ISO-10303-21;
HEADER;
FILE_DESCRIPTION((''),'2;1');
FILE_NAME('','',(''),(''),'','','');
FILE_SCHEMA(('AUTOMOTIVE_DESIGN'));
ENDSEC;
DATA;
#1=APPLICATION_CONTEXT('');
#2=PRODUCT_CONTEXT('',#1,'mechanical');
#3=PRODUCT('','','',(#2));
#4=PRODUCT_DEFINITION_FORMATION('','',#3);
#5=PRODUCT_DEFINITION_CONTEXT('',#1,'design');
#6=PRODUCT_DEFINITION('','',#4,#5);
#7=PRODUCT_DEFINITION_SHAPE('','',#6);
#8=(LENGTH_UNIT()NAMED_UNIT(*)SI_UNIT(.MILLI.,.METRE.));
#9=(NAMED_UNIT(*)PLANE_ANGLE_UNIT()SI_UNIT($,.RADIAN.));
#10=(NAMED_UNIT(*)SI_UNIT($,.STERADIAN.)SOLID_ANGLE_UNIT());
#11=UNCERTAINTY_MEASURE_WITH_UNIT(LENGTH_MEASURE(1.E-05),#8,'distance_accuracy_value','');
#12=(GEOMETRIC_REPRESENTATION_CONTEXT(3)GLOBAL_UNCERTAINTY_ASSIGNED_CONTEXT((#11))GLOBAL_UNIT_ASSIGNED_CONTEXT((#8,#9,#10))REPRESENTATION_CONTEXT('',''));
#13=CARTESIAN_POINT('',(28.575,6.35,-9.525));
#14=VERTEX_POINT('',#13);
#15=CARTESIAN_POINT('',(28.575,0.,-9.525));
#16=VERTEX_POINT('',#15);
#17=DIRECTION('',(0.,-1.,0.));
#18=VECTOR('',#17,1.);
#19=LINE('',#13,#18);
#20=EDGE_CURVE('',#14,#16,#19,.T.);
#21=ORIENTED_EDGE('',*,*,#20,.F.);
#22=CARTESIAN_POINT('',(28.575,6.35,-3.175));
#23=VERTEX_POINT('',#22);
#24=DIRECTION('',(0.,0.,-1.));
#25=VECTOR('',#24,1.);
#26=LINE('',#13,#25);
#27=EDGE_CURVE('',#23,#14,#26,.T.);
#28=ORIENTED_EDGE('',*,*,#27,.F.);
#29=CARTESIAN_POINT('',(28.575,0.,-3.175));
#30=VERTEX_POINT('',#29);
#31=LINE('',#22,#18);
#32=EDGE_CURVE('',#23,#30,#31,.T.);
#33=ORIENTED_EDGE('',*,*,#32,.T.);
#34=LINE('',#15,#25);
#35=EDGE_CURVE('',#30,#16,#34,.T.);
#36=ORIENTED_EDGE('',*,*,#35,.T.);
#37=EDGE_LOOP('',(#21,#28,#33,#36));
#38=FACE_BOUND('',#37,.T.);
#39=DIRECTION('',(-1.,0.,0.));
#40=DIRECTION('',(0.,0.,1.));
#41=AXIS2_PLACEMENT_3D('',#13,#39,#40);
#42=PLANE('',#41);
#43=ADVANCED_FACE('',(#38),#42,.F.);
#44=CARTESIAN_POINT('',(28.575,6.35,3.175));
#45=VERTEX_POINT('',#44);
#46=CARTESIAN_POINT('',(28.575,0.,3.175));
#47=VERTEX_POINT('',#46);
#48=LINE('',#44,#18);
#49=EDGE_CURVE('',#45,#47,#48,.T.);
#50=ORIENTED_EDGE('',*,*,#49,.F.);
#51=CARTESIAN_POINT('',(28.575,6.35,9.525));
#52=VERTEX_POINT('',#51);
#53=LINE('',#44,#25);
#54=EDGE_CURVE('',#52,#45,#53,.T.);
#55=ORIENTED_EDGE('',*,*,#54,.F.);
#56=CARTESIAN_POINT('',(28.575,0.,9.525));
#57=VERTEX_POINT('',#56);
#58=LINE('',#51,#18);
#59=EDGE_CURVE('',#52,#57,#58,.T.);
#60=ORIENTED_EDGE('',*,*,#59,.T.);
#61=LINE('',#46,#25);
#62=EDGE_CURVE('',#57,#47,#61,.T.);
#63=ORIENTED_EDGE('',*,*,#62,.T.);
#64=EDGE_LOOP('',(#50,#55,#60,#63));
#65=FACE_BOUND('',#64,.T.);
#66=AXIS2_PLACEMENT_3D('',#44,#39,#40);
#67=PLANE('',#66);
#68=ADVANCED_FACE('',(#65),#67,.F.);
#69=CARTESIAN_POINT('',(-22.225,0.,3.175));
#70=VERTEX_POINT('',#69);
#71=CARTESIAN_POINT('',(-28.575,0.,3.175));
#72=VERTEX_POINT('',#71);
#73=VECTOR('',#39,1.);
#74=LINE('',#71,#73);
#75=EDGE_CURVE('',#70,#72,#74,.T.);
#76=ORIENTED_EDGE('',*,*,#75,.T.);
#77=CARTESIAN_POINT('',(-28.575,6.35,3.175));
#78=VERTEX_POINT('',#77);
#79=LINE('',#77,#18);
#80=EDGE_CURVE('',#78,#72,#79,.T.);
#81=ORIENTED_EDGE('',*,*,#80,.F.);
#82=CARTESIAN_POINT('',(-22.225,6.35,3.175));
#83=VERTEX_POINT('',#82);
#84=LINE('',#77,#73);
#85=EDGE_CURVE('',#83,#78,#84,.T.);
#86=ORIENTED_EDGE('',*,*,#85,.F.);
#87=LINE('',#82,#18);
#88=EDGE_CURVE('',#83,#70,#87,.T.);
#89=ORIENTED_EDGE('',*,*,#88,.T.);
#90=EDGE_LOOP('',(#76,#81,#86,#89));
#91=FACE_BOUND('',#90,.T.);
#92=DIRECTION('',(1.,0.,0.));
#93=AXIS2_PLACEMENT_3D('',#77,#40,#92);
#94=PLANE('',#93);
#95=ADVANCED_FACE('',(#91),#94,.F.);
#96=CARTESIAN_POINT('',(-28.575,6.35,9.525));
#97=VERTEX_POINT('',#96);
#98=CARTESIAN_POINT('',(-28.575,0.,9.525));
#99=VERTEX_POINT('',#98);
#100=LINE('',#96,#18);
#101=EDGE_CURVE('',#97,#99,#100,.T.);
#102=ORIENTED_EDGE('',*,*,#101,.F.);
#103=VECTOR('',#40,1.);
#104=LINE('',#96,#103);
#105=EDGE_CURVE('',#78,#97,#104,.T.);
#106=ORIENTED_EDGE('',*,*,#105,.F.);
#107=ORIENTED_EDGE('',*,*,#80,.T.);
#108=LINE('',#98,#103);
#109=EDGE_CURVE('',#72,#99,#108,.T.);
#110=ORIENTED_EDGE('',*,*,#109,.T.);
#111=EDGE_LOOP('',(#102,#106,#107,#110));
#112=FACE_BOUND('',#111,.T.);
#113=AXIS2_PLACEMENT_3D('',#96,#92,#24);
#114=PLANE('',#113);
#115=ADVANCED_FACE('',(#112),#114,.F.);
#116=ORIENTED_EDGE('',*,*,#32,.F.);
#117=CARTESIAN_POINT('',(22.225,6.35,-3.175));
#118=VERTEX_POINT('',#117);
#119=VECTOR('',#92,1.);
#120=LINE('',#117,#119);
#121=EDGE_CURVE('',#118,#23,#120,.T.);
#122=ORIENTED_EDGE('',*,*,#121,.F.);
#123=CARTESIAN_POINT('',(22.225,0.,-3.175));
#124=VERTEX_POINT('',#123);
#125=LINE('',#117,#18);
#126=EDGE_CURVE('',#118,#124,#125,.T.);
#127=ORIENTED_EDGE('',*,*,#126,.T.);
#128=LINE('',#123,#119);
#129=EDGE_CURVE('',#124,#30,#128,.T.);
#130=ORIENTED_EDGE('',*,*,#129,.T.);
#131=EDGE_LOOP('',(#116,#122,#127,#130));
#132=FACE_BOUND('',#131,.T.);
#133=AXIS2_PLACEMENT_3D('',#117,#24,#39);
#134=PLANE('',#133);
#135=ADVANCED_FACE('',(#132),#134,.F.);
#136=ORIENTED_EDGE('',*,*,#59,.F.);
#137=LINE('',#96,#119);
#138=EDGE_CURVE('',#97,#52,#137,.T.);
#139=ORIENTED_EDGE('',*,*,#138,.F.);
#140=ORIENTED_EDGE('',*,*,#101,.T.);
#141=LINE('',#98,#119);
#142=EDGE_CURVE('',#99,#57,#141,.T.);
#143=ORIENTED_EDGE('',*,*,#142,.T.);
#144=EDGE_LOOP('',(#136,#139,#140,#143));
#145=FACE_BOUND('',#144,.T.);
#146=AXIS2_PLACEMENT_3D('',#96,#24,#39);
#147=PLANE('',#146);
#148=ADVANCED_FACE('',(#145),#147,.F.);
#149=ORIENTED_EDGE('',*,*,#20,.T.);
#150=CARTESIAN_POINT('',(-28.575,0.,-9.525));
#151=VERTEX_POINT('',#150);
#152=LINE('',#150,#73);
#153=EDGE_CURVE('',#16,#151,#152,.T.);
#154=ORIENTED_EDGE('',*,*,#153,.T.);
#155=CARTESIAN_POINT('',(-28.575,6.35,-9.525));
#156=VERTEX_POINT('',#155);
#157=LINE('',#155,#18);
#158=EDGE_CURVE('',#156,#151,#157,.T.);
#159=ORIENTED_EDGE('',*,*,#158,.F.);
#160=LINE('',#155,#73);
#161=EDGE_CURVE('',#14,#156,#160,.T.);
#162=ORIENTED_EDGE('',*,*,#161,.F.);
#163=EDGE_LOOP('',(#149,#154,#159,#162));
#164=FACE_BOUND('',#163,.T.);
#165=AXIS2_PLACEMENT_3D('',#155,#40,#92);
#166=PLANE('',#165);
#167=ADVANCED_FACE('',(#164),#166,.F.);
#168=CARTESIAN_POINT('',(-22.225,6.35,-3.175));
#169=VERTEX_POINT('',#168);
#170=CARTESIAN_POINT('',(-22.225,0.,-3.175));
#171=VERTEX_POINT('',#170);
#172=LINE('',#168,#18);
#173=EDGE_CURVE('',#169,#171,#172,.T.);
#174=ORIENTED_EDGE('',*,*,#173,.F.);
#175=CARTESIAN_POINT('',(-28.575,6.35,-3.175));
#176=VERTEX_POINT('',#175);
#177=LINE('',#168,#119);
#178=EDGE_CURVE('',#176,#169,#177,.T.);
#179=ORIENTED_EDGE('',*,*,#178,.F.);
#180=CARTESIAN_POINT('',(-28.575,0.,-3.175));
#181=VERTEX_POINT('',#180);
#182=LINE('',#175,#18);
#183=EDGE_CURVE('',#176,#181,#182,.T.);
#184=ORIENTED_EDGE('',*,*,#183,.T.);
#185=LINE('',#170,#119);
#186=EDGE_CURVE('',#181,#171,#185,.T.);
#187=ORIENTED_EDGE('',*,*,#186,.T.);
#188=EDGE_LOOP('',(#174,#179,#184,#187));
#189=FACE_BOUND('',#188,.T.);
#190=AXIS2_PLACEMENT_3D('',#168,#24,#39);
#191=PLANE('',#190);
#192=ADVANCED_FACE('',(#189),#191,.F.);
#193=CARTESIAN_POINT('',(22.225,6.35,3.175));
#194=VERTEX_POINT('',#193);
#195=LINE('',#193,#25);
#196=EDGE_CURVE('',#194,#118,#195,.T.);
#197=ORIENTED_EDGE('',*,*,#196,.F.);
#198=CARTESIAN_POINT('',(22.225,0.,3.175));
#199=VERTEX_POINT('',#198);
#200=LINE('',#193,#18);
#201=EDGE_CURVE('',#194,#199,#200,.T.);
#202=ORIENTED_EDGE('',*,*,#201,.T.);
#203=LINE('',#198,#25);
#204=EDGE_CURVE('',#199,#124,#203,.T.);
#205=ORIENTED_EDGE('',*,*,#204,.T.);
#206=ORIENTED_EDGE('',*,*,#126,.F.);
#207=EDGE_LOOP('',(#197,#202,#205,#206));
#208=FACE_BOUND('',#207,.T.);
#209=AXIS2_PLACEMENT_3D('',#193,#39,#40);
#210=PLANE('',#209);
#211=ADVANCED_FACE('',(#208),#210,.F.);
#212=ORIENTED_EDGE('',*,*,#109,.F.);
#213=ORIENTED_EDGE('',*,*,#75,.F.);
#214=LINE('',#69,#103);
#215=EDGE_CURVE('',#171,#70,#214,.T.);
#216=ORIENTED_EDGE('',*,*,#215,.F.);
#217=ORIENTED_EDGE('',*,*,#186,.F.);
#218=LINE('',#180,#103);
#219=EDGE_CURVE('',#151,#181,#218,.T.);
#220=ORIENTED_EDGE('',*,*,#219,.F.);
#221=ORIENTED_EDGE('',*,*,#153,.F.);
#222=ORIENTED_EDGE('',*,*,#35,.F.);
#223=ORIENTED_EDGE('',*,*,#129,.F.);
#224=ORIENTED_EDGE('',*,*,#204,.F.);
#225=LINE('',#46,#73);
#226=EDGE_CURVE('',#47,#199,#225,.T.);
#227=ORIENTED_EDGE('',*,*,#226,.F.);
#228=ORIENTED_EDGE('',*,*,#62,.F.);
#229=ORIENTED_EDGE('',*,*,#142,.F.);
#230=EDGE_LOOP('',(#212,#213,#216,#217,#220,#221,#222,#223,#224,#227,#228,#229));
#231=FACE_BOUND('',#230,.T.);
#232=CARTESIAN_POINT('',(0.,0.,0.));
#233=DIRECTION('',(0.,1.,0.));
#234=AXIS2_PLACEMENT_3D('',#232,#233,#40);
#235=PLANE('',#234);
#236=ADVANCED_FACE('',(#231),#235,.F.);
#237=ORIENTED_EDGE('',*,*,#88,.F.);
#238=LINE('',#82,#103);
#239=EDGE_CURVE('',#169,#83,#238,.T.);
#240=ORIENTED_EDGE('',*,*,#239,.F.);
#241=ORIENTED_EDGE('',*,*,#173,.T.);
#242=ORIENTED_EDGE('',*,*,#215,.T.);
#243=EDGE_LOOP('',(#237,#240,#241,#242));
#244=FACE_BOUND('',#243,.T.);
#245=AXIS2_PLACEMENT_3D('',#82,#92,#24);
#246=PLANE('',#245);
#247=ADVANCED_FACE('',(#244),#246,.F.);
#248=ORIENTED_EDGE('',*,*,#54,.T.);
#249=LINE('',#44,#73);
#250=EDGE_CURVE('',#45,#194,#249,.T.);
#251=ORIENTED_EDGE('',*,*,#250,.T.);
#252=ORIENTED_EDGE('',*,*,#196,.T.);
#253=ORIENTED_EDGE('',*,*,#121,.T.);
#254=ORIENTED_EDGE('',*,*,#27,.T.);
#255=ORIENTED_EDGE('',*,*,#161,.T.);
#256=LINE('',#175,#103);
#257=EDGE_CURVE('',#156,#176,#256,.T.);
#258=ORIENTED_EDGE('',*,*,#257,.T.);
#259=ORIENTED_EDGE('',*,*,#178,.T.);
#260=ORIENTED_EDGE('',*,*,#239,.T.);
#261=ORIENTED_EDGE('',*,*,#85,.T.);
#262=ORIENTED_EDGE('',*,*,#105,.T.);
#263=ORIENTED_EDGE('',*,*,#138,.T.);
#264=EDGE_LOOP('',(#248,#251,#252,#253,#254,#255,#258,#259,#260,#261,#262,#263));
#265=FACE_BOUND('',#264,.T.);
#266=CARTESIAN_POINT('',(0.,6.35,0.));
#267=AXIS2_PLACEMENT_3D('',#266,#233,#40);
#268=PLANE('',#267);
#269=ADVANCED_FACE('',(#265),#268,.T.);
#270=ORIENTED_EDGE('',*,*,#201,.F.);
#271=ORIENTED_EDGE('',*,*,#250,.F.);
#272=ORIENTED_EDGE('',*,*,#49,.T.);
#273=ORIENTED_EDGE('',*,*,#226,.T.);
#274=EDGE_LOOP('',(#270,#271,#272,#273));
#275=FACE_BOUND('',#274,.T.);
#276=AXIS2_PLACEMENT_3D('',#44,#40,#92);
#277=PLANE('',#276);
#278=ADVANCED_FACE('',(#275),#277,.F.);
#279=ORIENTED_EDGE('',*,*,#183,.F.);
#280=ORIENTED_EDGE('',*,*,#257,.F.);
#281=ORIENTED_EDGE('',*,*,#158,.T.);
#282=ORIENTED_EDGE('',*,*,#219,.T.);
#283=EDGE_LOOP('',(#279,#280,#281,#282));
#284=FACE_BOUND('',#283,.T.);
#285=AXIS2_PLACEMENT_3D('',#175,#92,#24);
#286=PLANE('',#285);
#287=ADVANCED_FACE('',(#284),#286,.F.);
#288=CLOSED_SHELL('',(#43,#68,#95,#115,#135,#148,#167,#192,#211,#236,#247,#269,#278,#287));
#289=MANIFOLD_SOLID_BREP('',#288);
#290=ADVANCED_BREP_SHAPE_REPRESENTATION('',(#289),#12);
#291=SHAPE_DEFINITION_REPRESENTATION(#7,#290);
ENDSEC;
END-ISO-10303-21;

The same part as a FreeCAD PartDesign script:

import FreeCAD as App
import Part
import Sketcher

V = App.Vector
Q = App.Units.Quantity

doc = App.newDocument("Part")
body = doc.addObject("PartDesign::Body", "Body")

# Sketch on XZ plane
sketch1 = body.newObject("Sketcher::SketchObject", "Sketch")
sketch1.AttachmentSupport = (doc.getObject("XZ_Plane"), [""])
sketch1.MapMode = "FlatFace"
sketch1.addGeometry([
    Part.LineSegment(V(-29, 3, 0), V(-29, 10, 0)),  # 0
    Part.LineSegment(V(-29, 10, 0), V(29, 10, 0)),  # 1
    Part.LineSegment(V(29, 10, 0), V(29, 3, 0)),  # 2
    Part.LineSegment(V(29, 3, 0), V(22, 3, 0)),  # 3
    Part.LineSegment(V(22, 3, 0), V(22, -3, 0)),  # 4
    Part.LineSegment(V(22, -3, 0), V(29, -3, 0)),  # 5
    Part.LineSegment(V(29, -3, 0), V(29, -10, 0)),  # 6
    Part.LineSegment(V(29, -10, 0), V(-29, -10, 0)),  # 7
    Part.LineSegment(V(-29, -10, 0), V(-29, -3, 0)),  # 8
    Part.LineSegment(V(-29, -3, 0), V(-22, -3, 0)),  # 9
    Part.LineSegment(V(-22, -3, 0), V(-22, 3, 0)),  # 10
    Part.LineSegment(V(-22, 3, 0), V(-29, 3, 0)),  # 11
], False)
sketch1.addConstraint([
    Sketcher.Constraint("Coincident", 0, 2, 1, 1),
    Sketcher.Constraint("Coincident", 1, 2, 2, 1),
    Sketcher.Constraint("Coincident", 2, 2, 3, 1),
    Sketcher.Constraint("Coincident", 3, 2, 4, 1),
    Sketcher.Constraint("Coincident", 4, 2, 5, 1),
    Sketcher.Constraint("Coincident", 5, 2, 6, 1),
    Sketcher.Constraint("Coincident", 6, 2, 7, 1),
    Sketcher.Constraint("Coincident", 7, 2, 8, 1),
    Sketcher.Constraint("Coincident", 8, 2, 9, 1),
    Sketcher.Constraint("Coincident", 9, 2, 10, 1),
    Sketcher.Constraint("Coincident", 10, 2, 11, 1),
    Sketcher.Constraint("Coincident", 11, 2, 0, 1),
    Sketcher.Constraint("Vertical", 0),
    Sketcher.Constraint("Horizontal", 1),
    Sketcher.Constraint("Vertical", 2),
    Sketcher.Constraint("Horizontal", 3),
    Sketcher.Constraint("Vertical", 4),
    Sketcher.Constraint("Horizontal", 5),
    Sketcher.Constraint("Vertical", 6),
    Sketcher.Constraint("Horizontal", 7),
    Sketcher.Constraint("Vertical", 8),
    Sketcher.Constraint("Horizontal", 9),
    Sketcher.Constraint("Vertical", 10),
    Sketcher.Constraint("Horizontal", 11),
    Sketcher.Constraint("Symmetric", 0, 2, 6, 2, -1, 1),
    Sketcher.Constraint("Symmetric", 2, 2, 8, 2, -1, 1),
    Sketcher.Constraint("Symmetric", 4, 2, 10, 2, -1, 1),
    Sketcher.Constraint("Symmetric", 5, 2, 8, 2, -2),
    Sketcher.Constraint("Equal", 11, 0),
    Sketcher.Constraint("Equal", 2, 4),
    Sketcher.Constraint("DistanceX", 0, 2, 3, 2, Q("2 in")),
    Sketcher.Constraint("DistanceX", 1, 1, 1, 2, Q("2.25 in")),
])
pad1 = body.newObject("PartDesign::Pad", "Pad")
pad1.Profile = sketch1
pad1.Length = Q("0.25 in")
pad1.Reversed = True

doc.recompute()
